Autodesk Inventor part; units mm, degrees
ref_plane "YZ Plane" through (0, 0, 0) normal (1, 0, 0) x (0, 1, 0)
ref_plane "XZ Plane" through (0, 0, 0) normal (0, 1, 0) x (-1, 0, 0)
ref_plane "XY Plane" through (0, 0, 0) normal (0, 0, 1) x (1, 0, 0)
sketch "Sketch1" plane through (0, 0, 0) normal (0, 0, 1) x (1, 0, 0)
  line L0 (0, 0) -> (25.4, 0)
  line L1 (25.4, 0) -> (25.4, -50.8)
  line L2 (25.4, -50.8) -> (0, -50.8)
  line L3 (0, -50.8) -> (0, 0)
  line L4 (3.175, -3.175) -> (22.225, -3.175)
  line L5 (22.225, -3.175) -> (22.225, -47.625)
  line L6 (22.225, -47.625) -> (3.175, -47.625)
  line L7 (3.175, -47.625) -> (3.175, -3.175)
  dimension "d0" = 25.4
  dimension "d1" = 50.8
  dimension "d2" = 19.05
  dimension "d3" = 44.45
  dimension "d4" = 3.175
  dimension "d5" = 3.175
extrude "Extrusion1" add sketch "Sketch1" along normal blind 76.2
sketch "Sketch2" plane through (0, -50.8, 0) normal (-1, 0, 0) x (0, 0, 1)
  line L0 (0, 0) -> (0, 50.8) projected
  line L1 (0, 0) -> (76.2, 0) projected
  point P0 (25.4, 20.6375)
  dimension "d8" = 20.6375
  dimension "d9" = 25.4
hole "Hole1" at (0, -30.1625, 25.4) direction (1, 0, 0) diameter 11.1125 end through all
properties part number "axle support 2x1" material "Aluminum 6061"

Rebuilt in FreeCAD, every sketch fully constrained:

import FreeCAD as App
import Part
import Sketcher
from FreeCAD import Vector
Q = App.Units.Quantity

doc = App.newDocument("Part")
body = doc.addObject("PartDesign::Body", "Body")

# Sketch on XY plane
sketch1 = doc.addObject("Sketcher::SketchObject", "Sketch")
body.addObject(sketch1)
sketch1.AttachmentSupport = (doc.XY_Plane, [""])
sketch1.MapMode = "FlatFace"
sketch1.addGeometry(Part.LineSegment(Vector(25.4, 0, 0), Vector(0, 0, 0)), False)
sketch1.addGeometry(Part.LineSegment(Vector(0, 0, 0), Vector(0, -50.8, 0)), False)
sketch1.addGeometry(Part.LineSegment(Vector(0, -50.8, 0), Vector(25.4, -50.8, 0)), False)
sketch1.addGeometry(Part.LineSegment(Vector(25.4, -50.8, 0), Vector(25.4, 0, 0)), False)
sketch1.addGeometry(Part.LineSegment(Vector(3.175, -47.625, 0), Vector(3.175, -3.175, 0)), False)
sketch1.addGeometry(Part.LineSegment(Vector(3.175, -3.175, 0), Vector(22.225, -3.175, 0)), False)
sketch1.addGeometry(Part.LineSegment(Vector(22.225, -3.175, 0), Vector(22.225, -47.625, 0)), False)
sketch1.addGeometry(Part.LineSegment(Vector(22.225, -47.625, 0), Vector(3.175, -47.625, 0)), False)
sketch1.addConstraint(Sketcher.Constraint("Coincident", 0, 2, 1, 1))
sketch1.addConstraint(Sketcher.Constraint("Coincident", 1, 2, 2, 1))
sketch1.addConstraint(Sketcher.Constraint("Coincident", 2, 2, 3, 1))
sketch1.addConstraint(Sketcher.Constraint("Coincident", 3, 2, 0, 1))
sketch1.addConstraint(Sketcher.Constraint("Coincident", 4, 2, 5, 1))
sketch1.addConstraint(Sketcher.Constraint("Coincident", 5, 2, 6, 1))
sketch1.addConstraint(Sketcher.Constraint("Coincident", 6, 2, 7, 1))
sketch1.addConstraint(Sketcher.Constraint("Coincident", 7, 2, 4, 1))
sketch1.addConstraint(Sketcher.Constraint("Horizontal", 0))
sketch1.addConstraint(Sketcher.Constraint("Vertical", 1))
sketch1.addConstraint(Sketcher.Constraint("Horizontal", 2))
sketch1.addConstraint(Sketcher.Constraint("Vertical", 3))
sketch1.addConstraint(Sketcher.Constraint("Vertical", 4))
sketch1.addConstraint(Sketcher.Constraint("Horizontal", 5))
sketch1.addConstraint(Sketcher.Constraint("Vertical", 6))
sketch1.addConstraint(Sketcher.Constraint("Horizontal", 7))
sketch1.addConstraint(Sketcher.Constraint("Coincident", 0, 2, -1, 1))
sketch1.addConstraint(Sketcher.Constraint("DistanceX", 0, 2, 0, 1, Q("1 in")))
sketch1.addConstraint(Sketcher.Constraint("DistanceY", 1, 2, 1, 1, Q("2 in")))
sketch1.addConstraint(Sketcher.Constraint("DistanceX", 5, 1, 5, 2, Q("0.75 in")))
sketch1.addConstraint(Sketcher.Constraint("DistanceY", 4, 1, 4, 2, Q("1.75 in")))
sketch1.addConstraint(Sketcher.Constraint("DistanceX", -1, 1, 4, 2, Q("0.125 in")))
sketch1.addConstraint(Sketcher.Constraint("DistanceY", 4, 2, -1, 1, Q("0.125 in")))
pad1 = doc.addObject("PartDesign::Pad", "Pad")
body.addObject(pad1)
pad1.Profile = sketch1
pad1.Length = Q("3 in")

# Sketch on YZ plane
sketch2 = doc.addObject("Sketcher::SketchObject", "Sketch001")
body.addObject(sketch2)
sketch2.AttachmentSupport = (doc.YZ_Plane, [""])
sketch2.MapMode = "FlatFace"
sketch2.addGeometry(Part.Circle(Vector(-30.1625, 25.4, 0), Vector(0, 0, 1), 5.55625), False)
sketch2.addConstraint(Sketcher.Constraint("Diameter", 0, Q("0.4375 in")))
sketch2.addConstraint(Sketcher.Constraint("DistanceY", -1, 1, 0, 3, Q("1 in")))
sketch2.addConstraint(Sketcher.Constraint("DistanceX", 0, 3, -1, 1, Q("1.1875 in")))
doc.recompute()
hole = doc.addObject("PartDesign::Hole", "Hole")
body.addObject(hole)
hole.Profile = sketch2
hole.ThreadType = "None"
hole.Diameter = Q("0.4375 in")
hole.DepthType = "ThroughAll"
hole.Reversed = True

doc.recompute()
